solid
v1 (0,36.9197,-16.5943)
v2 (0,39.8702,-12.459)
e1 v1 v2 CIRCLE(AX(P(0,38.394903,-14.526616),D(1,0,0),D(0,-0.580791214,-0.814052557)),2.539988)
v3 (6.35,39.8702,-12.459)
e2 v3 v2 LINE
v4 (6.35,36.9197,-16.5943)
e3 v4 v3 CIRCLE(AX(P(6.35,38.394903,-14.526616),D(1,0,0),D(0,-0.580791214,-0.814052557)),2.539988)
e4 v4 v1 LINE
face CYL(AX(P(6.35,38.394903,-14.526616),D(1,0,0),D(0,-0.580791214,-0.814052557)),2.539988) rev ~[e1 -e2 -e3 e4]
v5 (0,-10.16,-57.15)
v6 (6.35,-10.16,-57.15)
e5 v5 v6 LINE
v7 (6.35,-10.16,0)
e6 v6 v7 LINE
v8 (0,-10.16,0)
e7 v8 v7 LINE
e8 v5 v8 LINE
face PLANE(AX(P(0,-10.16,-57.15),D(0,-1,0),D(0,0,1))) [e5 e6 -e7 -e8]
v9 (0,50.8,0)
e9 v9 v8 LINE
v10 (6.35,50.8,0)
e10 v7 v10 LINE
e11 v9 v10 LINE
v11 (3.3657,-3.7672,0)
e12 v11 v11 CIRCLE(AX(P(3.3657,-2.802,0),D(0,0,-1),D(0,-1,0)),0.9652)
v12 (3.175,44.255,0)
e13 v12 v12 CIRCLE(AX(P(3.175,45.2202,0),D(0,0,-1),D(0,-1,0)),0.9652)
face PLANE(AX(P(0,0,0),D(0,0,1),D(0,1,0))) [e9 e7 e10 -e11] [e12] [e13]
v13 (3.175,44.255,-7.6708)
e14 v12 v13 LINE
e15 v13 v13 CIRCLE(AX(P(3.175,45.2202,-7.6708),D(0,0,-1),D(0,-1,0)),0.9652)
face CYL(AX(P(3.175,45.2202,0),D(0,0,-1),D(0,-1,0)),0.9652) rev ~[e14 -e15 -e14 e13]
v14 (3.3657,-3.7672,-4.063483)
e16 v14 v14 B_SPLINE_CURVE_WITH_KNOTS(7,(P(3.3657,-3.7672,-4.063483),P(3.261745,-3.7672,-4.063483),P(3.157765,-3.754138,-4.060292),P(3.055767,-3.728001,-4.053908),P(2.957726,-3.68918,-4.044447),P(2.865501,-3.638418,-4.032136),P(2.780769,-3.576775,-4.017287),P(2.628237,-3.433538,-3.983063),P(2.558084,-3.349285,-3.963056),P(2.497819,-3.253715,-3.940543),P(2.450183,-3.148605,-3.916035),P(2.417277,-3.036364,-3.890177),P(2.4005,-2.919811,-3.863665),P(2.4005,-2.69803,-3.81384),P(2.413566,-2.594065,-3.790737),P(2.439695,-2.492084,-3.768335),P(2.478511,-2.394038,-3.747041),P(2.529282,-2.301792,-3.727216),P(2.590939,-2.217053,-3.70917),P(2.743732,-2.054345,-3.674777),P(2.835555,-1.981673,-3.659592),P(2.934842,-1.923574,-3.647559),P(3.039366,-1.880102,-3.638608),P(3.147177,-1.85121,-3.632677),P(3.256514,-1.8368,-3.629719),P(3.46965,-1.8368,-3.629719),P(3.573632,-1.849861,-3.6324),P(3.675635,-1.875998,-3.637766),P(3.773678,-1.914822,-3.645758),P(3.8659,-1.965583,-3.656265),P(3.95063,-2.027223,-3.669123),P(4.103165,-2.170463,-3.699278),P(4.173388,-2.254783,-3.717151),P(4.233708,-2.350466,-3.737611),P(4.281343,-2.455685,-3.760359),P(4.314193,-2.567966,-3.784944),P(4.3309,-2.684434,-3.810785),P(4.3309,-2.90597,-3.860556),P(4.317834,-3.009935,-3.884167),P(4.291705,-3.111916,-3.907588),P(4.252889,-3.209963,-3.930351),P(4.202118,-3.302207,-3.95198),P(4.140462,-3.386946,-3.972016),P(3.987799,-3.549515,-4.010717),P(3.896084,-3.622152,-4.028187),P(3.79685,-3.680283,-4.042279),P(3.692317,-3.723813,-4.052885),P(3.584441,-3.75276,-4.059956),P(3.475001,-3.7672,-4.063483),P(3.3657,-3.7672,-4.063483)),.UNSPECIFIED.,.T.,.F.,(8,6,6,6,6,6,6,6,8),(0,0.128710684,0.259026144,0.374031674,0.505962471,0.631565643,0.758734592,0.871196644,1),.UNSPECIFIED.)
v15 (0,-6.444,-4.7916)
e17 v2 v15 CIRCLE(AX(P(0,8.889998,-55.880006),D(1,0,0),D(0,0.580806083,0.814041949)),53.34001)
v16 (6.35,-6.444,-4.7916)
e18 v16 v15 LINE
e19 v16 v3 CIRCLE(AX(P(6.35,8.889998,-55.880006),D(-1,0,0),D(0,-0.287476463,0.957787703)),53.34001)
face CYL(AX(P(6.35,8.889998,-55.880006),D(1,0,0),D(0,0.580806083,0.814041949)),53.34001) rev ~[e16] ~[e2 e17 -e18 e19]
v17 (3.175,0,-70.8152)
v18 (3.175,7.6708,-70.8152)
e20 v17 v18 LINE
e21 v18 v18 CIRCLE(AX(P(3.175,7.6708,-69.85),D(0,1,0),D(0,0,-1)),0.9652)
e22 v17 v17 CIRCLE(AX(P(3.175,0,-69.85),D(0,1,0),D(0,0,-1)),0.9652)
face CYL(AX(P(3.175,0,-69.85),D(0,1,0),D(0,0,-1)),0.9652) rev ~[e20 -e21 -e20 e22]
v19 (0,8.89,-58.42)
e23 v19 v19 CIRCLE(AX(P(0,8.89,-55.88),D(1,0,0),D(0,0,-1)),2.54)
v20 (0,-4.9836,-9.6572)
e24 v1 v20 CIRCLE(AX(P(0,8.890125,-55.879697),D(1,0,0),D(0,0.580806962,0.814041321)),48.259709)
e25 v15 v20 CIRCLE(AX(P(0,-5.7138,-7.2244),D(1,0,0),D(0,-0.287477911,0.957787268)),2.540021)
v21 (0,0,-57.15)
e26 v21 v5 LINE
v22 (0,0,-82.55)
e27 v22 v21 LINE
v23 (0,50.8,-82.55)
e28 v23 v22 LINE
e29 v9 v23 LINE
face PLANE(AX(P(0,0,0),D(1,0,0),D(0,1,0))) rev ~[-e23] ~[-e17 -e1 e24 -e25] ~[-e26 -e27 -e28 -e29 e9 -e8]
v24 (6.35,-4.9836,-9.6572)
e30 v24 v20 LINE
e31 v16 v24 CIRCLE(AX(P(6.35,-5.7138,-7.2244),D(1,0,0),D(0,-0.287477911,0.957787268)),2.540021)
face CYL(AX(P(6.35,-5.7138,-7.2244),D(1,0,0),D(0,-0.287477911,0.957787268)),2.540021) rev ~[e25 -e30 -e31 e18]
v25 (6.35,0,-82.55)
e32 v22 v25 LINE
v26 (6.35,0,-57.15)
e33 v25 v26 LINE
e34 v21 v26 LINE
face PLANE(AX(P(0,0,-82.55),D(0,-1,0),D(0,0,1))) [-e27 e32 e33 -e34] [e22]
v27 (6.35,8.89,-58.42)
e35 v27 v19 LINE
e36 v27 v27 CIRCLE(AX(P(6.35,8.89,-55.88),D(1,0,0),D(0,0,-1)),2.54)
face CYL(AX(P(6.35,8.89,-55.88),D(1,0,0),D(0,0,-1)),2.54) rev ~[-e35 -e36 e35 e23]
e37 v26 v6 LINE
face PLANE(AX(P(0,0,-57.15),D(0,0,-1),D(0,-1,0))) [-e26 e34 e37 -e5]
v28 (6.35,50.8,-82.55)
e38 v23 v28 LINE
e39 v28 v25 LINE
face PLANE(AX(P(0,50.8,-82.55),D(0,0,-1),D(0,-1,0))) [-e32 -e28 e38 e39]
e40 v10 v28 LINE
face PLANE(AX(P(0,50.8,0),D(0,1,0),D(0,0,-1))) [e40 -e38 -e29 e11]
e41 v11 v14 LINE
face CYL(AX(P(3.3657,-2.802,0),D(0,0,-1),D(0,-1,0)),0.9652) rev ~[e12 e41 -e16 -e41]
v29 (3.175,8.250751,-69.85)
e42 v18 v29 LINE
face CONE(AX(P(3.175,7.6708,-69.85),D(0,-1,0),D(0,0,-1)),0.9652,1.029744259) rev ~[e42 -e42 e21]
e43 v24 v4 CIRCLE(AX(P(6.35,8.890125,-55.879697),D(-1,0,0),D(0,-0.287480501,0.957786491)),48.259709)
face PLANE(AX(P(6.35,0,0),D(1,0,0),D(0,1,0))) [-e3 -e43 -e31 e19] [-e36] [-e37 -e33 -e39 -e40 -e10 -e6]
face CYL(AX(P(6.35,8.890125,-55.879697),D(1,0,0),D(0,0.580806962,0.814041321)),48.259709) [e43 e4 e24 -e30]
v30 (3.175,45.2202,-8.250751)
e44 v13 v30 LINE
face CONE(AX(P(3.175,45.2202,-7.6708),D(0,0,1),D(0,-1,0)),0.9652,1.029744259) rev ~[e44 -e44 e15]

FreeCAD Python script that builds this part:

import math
import FreeCAD as App
import Part
import Sketcher
from FreeCAD import Vector
Q = App.Units.Quantity

doc = App.newDocument("Part")
body = doc.addObject("PartDesign::Body", "Body")

# Sketch on YZ plane
sketch1 = body.newObject("Sketcher::SketchObject", "Sketch")
sketch1.AttachmentSupport = (doc.getObject("YZ_Plane"), [""])
sketch1.MapMode = "FlatFace"
sketch1.addGeometry(Part.LineSegment(Vector(51, 0, 0), Vector(-10, 0, 0)), False)
sketch1.addGeometry(Part.LineSegment(Vector(-10, 0, 0), Vector(-10, -57, 0)), False)
sketch1.addGeometry(Part.LineSegment(Vector(-10, -57, 0), Vector(0, -57, 0)), False)
sketch1.addGeometry(Part.LineSegment(Vector(0, -57, 0), Vector(0, -83, 0)), False)
sketch1.addGeometry(Part.LineSegment(Vector(0, -83, 0), Vector(51, -83, 0)), False)
sketch1.addGeometry(Part.LineSegment(Vector(51, -83, 0), Vector(51, 0, 0)), False)
sketch1.addConstraint(Sketcher.Constraint("Coincident", 0, 2, 1, 1))
sketch1.addConstraint(Sketcher.Constraint("Coincident", 1, 2, 2, 1))
sketch1.addConstraint(Sketcher.Constraint("Coincident", 2, 2, 3, 1))
sketch1.addConstraint(Sketcher.Constraint("Coincident", 3, 2, 4, 1))
sketch1.addConstraint(Sketcher.Constraint("Coincident", 4, 2, 5, 1))
sketch1.addConstraint(Sketcher.Constraint("Coincident", 5, 2, 0, 1))
sketch1.addConstraint(Sketcher.Constraint("Horizontal", 0))
sketch1.addConstraint(Sketcher.Constraint("Vertical", 1))
sketch1.addConstraint(Sketcher.Constraint("Horizontal", 2))
sketch1.addConstraint(Sketcher.Constraint("Vertical", 3))
sketch1.addConstraint(Sketcher.Constraint("Horizontal", 4))
sketch1.addConstraint(Sketcher.Constraint("Vertical", 5))
sketch1.addConstraint(Sketcher.Constraint("PointOnObject", 0, 2, -1))
sketch1.addConstraint(Sketcher.Constraint("PointOnObject", 2, 2, -2))
sketch1.addConstraint(Sketcher.Constraint("DistanceX", 4, 1, 4, 2, Q("2 in")))
sketch1.addConstraint(Sketcher.Constraint("DistanceY", 3, 2, 3, 1, Q("1 in")))
sketch1.addConstraint(Sketcher.Constraint("DistanceX", 2, 1, 2, 2, Q("0.4 in")))
sketch1.addConstraint(Sketcher.Constraint("DistanceY", 5, 1, 5, 2, Q("3.25 in")))
pad1 = body.newObject("PartDesign::Pad", "Pad")
pad1.Profile = sketch1
pad1.Length = Q("0.25 in")

# Sketch on YZ plane
sketch2 = body.newObject("Sketcher::SketchObject", "Sketch001")
sketch2.AttachmentSupport = (doc.getObject("YZ_Plane"), [""])
sketch2.MapMode = "FlatFace"
sketch2.AttachmentOffset = App.Placement(Vector(0, 0, 0.25 * 25.4), App.Rotation())
sketch2.addGeometry(Part.Circle(Vector(8.9, -55.9, 0), Vector(0, 0, 1), 2.5), False)
sketch2.addGeometry(Part.ArcOfCircle(Part.Circle(Vector(8.9, -55.9, 0), Vector(0, 0, 1), 53.3), math.radians(54), math.radians(107)), False)
sketch2.addGeometry(Part.ArcOfCircle(Part.Circle(Vector(-5.7, -7.2, 0), Vector(0, 0, 1), 2.5), math.radians(107), math.radians(287)), False)
sketch2.addGeometry(Part.ArcOfCircle(Part.Circle(Vector(8.9, -55.9, 0), Vector(0, 0, 1), 48.3), math.radians(54), math.radians(107)), False)
sketch2.addGeometry(Part.ArcOfCircle(Part.Circle(Vector(38.4, -14.5, 0), Vector(0, 0, 1), 2.5), math.radians(-126), math.radians(54)), False)
sketch2.addConstraint(Sketcher.Constraint("Tangent", 1, 2, 2, 1))
sketch2.addConstraint(Sketcher.Constraint("Tangent", 2, 2, 3, 2))
sketch2.addConstraint(Sketcher.Constraint("Tangent", 3, 1, 4, 1))
sketch2.addConstraint(Sketcher.Constraint("Tangent", 4, 2, 1, 1))
sketch2.addConstraint(Sketcher.Constraint("Coincident", 1, 3, 0, 3))
sketch2.addConstraint(Sketcher.Constraint("Coincident", 3, 3, 0, 3))
sketch2.addConstraint(Sketcher.Constraint("Equal", 0, 2))
sketch2.addConstraint(Sketcher.Constraint("Diameter", 0, Q("0.2 in")))
sketch2.addConstraint(Sketcher.Constraint("Radius", 1, Q("2.1 in")))
sketch2.addConstraint(Sketcher.Constraint("DistanceX", -1, 1, 0, 3, Q("0.35 in")))
sketch2.addConstraint(Sketcher.Constraint("DistanceY", 0, 3, -1, 1, Q("2.2 in")))
sketch2.addConstraint(Sketcher.Constraint("DistanceX", -1, 1, 4, 3, Q("1.5116 in")))
sketch2.addConstraint(Sketcher.Constraint("DistanceX", 1, 2, -1, 1, Q("0.2537 in")))
pocket1 = body.newObject("PartDesign::Pocket", "Pocket")
pocket1.Profile = sketch2
pocket1.Type = "ThroughAll"

# Sketch on XZ plane
sketch3 = body.newObject("Sketcher::SketchObject", "Sketch002")
sketch3.AttachmentSupport = (doc.getObject("XZ_Plane"), [""])
sketch3.MapMode = "FlatFace"
sketch3.addGeometry(Part.Circle(Vector(3.2, -69.8, 0), Vector(0, 0, 1), 1), False)
sketch3.addConstraint(Sketcher.Constraint("Diameter", 0, Q("0.076 in")))
sketch3.addConstraint(Sketcher.Constraint("DistanceY", 0, 3, -1, 1, Q("2.75 in")))
sketch3.addConstraint(Sketcher.Constraint("DistanceX", -1, 1, 0, 3, Q("0.125 in")))
doc.recompute()
hole = body.newObject("PartDesign::Hole", "Hole")
hole.Profile = sketch3
hole.ThreadType = "None"
hole.Diameter = Q("0.076 in")
hole.DepthType = "Dimension"
hole.Depth = Q("0.302 in")
hole.DrillPoint = "Angled"
hole.DrillPointAngle = 118

# Sketch on XY plane
sketch4 = body.newObject("Sketcher::SketchObject", "Sketch003")
sketch4.AttachmentSupport = (doc.getObject("XY_Plane"), [""])
sketch4.MapMode = "FlatFace"
sketch4.addGeometry(Part.Circle(Vector(3.4, -2.8, 0), Vector(0, 0, 1), 1), False)
sketch4.addGeometry(Part.Circle(Vector(3.2, 45.2, 0), Vector(0, 0, 1), 1), False)
sketch4.addConstraint(Sketcher.Constraint("Equal", 0, 1))
sketch4.addConstraint(Sketcher.Constraint("Diameter", 0, Q("0.076 in")))
sketch4.addConstraint(Sketcher.Constraint("DistanceX", -1, 1, 1, 3, Q("0.125 in")))
sketch4.addConstraint(Sketcher.Constraint("DistanceX", -1, 1, 0, 3, Q("0.1325 in")))
sketch4.addConstraint(Sketcher.Constraint("DistanceY", 0, 3, -1, 1, Q("2.802 mm")))
sketch4.addConstraint(Sketcher.Constraint("DistanceY", -1, 1, 1, 3, Q("45.2202 mm")))
doc.recompute()
hole2 = body.newObject("PartDesign::Hole", "Hole001")
hole2.Profile = sketch4
hole2.ThreadType = "None"
hole2.Diameter = Q("0.076 in")
hole2.DepthType = "Dimension"
hole2.Depth = Q("0.302 in")
hole2.DrillPoint = "Angled"
hole2.DrillPointAngle = 118

doc.recompute()
